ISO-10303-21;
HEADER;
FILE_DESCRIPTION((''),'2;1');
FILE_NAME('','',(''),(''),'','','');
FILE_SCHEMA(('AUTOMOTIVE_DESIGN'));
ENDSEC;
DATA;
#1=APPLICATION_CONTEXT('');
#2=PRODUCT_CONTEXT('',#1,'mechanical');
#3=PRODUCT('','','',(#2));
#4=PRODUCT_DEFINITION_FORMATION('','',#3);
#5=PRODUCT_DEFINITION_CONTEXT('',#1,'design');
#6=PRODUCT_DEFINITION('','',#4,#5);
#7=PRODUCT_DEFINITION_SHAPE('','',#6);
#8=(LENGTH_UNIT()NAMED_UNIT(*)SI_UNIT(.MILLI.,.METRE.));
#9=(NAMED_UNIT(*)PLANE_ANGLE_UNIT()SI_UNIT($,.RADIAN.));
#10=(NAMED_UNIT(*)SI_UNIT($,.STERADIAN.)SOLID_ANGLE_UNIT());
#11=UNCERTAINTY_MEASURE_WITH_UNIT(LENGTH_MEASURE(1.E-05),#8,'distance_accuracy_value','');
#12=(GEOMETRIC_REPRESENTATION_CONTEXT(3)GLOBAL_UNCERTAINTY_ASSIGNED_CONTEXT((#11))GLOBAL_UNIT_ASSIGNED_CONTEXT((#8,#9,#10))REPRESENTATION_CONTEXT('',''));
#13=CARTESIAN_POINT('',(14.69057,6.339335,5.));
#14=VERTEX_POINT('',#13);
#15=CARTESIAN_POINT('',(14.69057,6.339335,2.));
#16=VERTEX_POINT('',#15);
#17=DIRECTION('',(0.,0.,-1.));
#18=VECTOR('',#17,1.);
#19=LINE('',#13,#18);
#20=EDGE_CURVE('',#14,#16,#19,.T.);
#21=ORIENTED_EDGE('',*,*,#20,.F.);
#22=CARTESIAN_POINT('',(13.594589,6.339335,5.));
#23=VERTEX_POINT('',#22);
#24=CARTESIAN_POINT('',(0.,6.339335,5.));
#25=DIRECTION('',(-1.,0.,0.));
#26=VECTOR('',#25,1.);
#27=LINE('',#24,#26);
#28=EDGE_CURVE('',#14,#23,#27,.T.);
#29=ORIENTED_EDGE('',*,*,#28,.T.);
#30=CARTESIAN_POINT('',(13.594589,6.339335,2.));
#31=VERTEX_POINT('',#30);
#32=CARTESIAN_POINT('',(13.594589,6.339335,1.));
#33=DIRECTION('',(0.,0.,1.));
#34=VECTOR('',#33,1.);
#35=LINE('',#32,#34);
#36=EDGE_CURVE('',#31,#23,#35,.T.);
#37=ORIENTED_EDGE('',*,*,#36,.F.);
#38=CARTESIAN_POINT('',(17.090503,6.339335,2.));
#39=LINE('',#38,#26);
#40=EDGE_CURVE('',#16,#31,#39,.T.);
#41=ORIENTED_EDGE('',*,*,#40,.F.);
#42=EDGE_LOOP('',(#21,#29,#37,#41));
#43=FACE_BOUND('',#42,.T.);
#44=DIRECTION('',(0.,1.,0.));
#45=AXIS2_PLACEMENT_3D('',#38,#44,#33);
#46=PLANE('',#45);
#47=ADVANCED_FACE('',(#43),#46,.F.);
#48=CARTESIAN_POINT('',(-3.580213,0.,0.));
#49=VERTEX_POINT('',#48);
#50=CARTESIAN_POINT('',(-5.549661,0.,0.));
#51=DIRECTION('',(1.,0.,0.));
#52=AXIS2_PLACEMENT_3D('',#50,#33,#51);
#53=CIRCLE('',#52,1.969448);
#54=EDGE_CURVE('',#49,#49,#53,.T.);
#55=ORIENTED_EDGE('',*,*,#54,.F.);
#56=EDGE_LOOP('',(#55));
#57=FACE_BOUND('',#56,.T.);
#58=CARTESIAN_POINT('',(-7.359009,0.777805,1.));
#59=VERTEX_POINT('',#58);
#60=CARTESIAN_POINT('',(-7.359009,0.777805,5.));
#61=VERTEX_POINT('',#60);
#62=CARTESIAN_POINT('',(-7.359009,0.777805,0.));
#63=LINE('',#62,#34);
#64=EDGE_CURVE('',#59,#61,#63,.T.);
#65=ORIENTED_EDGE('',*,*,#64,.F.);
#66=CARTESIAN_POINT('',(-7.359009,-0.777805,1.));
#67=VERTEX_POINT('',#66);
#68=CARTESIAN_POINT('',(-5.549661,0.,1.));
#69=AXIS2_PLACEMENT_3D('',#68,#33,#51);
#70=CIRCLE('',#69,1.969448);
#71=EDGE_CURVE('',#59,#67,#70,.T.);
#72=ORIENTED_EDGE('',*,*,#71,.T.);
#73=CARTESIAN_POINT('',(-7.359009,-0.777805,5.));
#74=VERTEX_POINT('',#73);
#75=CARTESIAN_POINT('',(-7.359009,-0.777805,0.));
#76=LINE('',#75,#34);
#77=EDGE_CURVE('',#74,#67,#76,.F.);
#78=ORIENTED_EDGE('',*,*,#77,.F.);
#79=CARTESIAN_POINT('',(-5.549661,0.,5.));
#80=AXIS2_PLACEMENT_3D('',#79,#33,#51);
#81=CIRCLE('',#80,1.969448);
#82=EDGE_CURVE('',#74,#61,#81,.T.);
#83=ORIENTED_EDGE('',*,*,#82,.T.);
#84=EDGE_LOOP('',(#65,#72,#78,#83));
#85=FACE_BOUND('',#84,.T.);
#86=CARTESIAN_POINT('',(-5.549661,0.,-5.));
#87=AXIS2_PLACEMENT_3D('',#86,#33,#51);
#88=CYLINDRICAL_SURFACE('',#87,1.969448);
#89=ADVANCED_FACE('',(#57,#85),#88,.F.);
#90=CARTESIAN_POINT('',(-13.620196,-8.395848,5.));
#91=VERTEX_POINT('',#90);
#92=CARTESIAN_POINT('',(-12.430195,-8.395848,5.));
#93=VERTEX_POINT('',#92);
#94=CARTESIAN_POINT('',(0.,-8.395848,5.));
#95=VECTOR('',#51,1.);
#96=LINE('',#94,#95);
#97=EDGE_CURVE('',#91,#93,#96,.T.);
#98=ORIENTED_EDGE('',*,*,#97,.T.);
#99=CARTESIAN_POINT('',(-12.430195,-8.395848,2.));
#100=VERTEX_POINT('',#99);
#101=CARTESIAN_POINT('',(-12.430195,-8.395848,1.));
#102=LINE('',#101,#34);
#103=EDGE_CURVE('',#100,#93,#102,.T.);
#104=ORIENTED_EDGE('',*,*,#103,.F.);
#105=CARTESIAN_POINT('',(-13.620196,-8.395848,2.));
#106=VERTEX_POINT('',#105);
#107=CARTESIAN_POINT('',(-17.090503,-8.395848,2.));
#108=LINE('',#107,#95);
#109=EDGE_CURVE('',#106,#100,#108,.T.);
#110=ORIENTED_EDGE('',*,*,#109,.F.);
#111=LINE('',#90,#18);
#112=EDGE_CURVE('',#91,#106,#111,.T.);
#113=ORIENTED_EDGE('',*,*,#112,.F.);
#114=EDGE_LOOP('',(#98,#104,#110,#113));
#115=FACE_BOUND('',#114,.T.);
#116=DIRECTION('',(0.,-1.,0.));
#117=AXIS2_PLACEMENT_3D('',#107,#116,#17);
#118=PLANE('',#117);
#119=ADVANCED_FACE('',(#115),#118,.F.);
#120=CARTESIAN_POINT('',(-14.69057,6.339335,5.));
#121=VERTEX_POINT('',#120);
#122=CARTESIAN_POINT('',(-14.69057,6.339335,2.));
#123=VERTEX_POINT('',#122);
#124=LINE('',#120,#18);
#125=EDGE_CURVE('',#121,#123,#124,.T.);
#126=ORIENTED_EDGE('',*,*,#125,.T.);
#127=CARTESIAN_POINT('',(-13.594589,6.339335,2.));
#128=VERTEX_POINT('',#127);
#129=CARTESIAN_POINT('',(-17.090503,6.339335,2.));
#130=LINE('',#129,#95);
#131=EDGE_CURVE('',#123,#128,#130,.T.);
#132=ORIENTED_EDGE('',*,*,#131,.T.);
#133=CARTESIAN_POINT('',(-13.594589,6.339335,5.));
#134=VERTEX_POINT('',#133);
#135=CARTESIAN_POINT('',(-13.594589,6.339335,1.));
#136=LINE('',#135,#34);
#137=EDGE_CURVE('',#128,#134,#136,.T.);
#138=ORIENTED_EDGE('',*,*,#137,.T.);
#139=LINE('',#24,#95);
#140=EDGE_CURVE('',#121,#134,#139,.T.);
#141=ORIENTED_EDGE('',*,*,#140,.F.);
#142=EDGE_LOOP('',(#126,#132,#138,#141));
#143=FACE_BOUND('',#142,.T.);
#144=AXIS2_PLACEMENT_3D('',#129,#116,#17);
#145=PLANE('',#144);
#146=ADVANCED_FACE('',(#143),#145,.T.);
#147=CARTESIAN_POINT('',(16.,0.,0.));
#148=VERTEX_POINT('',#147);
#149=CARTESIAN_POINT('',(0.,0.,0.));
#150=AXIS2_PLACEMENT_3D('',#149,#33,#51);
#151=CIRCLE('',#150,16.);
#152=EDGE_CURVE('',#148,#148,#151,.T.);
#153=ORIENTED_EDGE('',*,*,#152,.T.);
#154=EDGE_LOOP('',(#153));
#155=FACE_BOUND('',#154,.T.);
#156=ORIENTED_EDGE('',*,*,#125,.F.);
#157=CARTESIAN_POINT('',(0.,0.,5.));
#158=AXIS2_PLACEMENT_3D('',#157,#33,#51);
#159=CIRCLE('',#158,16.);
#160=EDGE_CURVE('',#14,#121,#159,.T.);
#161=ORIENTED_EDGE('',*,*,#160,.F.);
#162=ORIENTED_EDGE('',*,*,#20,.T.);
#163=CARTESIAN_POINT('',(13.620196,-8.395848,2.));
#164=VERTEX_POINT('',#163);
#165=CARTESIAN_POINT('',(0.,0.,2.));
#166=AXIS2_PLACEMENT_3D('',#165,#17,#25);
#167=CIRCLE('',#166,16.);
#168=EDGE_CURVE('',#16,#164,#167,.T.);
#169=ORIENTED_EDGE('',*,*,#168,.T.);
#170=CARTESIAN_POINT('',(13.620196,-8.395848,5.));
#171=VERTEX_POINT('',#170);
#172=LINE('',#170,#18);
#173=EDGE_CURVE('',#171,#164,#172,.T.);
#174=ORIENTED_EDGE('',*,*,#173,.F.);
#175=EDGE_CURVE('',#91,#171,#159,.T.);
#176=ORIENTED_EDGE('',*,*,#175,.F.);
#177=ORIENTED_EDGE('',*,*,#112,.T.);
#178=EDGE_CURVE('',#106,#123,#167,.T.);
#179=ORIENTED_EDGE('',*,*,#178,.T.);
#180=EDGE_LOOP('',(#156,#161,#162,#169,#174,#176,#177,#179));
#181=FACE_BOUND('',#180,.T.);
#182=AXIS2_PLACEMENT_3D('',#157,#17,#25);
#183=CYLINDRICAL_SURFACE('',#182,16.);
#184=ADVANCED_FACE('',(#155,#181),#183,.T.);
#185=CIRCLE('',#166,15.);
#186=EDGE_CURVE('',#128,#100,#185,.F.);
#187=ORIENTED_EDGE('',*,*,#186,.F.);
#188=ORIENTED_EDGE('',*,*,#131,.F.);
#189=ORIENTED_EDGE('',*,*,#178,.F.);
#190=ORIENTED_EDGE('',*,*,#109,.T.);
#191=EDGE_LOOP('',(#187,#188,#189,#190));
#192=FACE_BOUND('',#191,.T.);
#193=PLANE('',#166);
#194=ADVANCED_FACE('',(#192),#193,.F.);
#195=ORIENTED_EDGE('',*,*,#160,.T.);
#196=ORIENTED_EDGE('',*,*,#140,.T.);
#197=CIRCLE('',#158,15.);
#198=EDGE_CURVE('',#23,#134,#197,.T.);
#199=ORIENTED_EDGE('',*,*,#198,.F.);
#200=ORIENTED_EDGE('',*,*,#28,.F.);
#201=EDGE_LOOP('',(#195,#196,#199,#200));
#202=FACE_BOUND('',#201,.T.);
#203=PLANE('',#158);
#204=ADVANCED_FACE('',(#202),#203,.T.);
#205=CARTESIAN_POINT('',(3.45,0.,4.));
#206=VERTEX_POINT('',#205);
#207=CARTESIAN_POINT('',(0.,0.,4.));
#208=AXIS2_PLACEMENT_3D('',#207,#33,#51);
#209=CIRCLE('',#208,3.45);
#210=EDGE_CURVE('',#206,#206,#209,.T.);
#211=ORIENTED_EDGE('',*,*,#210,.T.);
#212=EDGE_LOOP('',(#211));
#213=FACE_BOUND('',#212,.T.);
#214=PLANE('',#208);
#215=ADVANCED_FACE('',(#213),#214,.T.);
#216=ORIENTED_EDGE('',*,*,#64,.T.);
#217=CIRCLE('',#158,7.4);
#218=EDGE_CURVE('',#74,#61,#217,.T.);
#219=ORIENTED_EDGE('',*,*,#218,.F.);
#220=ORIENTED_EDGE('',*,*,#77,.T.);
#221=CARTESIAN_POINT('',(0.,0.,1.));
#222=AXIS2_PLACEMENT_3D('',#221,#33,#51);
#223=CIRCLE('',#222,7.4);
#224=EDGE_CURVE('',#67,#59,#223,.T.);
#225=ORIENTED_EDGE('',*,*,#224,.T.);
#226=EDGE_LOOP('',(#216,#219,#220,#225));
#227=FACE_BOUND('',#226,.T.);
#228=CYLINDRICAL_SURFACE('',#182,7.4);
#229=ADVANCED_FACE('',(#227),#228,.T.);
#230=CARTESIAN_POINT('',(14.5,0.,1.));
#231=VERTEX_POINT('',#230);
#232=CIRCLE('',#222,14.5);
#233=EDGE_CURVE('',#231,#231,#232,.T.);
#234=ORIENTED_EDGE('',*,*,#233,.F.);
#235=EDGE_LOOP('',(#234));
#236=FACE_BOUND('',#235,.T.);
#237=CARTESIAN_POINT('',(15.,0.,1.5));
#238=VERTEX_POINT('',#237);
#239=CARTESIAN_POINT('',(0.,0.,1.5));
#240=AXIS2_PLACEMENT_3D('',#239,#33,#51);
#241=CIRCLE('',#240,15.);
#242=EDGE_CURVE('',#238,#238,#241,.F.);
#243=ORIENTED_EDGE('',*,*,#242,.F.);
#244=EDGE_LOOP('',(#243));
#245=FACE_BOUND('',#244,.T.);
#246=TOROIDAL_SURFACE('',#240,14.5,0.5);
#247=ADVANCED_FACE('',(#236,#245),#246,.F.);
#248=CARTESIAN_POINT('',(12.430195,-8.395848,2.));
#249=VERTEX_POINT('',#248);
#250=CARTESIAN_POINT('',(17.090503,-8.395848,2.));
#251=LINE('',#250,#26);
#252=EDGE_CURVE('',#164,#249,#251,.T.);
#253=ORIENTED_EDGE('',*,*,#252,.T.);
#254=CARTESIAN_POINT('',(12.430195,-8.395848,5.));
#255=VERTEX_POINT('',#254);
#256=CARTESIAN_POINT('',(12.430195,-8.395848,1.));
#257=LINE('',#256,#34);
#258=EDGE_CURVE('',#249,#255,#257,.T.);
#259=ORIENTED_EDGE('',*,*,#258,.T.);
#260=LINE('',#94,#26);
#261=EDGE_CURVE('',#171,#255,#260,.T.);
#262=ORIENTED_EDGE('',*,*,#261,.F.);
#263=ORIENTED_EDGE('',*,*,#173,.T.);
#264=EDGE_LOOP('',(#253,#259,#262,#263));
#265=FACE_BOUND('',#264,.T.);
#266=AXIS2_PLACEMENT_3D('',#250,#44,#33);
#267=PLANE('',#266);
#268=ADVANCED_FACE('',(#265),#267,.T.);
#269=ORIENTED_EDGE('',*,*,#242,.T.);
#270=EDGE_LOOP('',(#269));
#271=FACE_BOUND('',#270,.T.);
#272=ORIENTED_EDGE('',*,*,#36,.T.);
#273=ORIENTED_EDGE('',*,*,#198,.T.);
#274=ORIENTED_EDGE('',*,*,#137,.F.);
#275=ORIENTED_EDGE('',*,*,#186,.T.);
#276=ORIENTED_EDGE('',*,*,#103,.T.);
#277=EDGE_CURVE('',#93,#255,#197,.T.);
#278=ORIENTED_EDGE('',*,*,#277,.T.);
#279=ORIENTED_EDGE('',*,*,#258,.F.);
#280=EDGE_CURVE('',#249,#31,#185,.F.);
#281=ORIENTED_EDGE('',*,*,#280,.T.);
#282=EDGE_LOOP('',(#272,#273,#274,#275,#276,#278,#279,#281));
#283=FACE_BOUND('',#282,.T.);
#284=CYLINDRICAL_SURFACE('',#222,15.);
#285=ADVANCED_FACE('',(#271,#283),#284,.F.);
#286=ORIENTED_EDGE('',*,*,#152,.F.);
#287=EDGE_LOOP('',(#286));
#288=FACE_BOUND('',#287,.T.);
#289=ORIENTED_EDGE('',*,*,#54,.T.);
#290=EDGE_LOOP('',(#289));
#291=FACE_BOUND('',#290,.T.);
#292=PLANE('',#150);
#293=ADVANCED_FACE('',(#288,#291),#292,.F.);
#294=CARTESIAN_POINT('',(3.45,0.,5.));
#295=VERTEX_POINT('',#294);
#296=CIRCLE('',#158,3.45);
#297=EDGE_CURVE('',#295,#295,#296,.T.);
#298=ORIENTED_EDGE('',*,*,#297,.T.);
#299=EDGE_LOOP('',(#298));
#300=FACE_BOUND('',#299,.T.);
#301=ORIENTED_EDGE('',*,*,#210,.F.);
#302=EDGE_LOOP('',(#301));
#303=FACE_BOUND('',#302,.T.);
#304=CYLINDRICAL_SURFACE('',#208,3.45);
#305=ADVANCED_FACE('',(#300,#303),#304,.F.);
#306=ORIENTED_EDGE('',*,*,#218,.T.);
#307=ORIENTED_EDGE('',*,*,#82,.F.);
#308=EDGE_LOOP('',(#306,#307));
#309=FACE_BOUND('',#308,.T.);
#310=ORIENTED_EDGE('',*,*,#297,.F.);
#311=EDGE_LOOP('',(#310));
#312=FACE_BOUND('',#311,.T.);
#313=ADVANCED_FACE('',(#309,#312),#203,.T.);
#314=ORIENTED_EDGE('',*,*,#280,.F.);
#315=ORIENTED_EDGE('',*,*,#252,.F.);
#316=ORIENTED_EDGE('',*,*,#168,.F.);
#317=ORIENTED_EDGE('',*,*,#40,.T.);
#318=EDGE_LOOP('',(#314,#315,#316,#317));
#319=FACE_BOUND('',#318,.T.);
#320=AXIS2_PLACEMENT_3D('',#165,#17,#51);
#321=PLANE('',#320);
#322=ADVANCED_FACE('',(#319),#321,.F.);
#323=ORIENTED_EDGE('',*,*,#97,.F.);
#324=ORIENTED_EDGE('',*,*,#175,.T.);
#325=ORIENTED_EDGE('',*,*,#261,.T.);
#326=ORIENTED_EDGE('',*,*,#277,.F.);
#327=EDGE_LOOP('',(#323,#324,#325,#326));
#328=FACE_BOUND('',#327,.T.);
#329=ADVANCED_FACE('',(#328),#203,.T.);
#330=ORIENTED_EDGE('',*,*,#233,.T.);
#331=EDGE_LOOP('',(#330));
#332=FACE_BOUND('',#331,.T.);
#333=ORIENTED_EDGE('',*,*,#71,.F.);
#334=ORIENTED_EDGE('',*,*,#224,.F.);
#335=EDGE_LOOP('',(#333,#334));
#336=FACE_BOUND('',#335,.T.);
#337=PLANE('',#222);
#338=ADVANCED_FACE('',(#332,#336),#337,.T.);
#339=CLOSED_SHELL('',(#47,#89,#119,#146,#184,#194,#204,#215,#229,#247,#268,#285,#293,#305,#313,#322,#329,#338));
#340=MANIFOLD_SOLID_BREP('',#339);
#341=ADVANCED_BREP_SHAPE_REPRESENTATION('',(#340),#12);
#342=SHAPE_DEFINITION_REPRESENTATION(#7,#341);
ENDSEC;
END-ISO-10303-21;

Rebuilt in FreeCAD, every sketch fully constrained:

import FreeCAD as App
import Part
import Sketcher

V = App.Vector


def edges_at(feature, points):
    """Names of the edges that pass closest to the given points."""
    edges = feature.Shape.Edges
    near = lambda p: min(range(len(edges)), key=lambda i: edges[i].distToShape(Part.Vertex(*p))[0])
    return sorted({f"Edge{near(p) + 1}" for p in points})


def add_polygon(sketch, points):
    """Adds a closed chain of lines whose ends are joined by coincident constraints."""
    first, n = sketch.GeometryCount, len(points)
    for a, b in zip(points, points[1:] + points[:1]):
        sketch.addGeometry(Part.LineSegment(App.Vector(*a, 0), App.Vector(*b, 0)), False)
    for i in range(n):
        sketch.addConstraint(Sketcher.Constraint("Coincident", first + i, 2, first + (i + 1) % n, 1))

doc = App.newDocument("Part")
body = doc.addObject("PartDesign::Body", "Body")

sketch1 = body.newObject("Sketcher::SketchObject", "Sketch")
sketch1.AttachmentSupport = (doc.getObject("XY_Plane"), [""])
sketch1.MapMode = "FlatFace"
sketch1.addGeometry(Part.Circle(V(0, 0, 0), V(0, 0, 1), 16), False)
sketch1.addConstraint([
    Sketcher.Constraint("Coincident", 0, 3, -1, 1),
    Sketcher.Constraint("Diameter", 0, 32.0),
])
pad1 = body.newObject("PartDesign::Pad", "Pad")
pad1.Profile = sketch1
pad1.Length = 5

sketch2 = body.newObject("Sketcher::SketchObject", "Sketch001")
sketch2.AttachmentSupport = (doc.getObject("XY_Plane"), [""])
sketch2.MapMode = "FlatFace"
sketch2.AttachmentOffset = App.Placement(V(0, 0, 5), App.Rotation())
sketch2.addGeometry(Part.Circle(V(0, 0, 0), V(0, 0, 1), 15), False)
sketch2.addConstraint([
    Sketcher.Constraint("Coincident", 0, 3, -1, 1),
    Sketcher.Constraint("Diameter", 0, 30.0),
])
pocket1 = body.newObject("PartDesign::Pocket", "Pocket")
pocket1.Profile = sketch2
pocket1.Length = 4
doc.recompute()

fillet = body.newObject("PartDesign::Fillet", "Fillet")
fillet.Base = (pocket1, edges_at(pocket1, [(-15, 0, 1)]))
fillet.Radius = 0.5

sketch3 = body.newObject("Sketcher::SketchObject", "Sketch002")
sketch3.AttachmentSupport = (doc.getObject("XY_Plane"), [""])
sketch3.MapMode = "FlatFace"
sketch3.AttachmentOffset = App.Placement(V(0, 0, 13), App.Rotation())
add_polygon(sketch3, [(-17.090503, 6.339335), (-17.090503, -8.395848), (-11.822002, -8.395848), (-11.822002, 6.339335)])
sketch3.addConstraint([
    Sketcher.Constraint("Vertical", 0),
    Sketcher.Constraint("Horizontal", 1),
    Sketcher.Constraint("Vertical", 2),
    Sketcher.Constraint("Horizontal", 3),
    Sketcher.Constraint("DistanceX", 1, 1, 1, 2, 5.268501),
    Sketcher.Constraint("DistanceY", 0, 2, 0, 1, 14.735182),
    Sketcher.Constraint("DistanceX", 0, 2, -1, 1, 17.090503),
    Sketcher.Constraint("DistanceY", 0, 2, -1, 1, 8.395848),
])
pocket2 = body.newObject("PartDesign::Pocket", "Pocket001")
pocket2.Profile = sketch3
pocket2.Length = 11
doc.recompute()

mirrored = body.newObject("PartDesign::Mirrored", "Mirrored")
mirrored.Originals = [pocket2]
mirrored.MirrorPlane = (doc.getObject("YZ_Plane"), [""])
body.Tip = mirrored

sketch4 = body.newObject("Sketcher::SketchObject", "Sketch003")
sketch4.AttachmentSupport = (doc.getObject("XY_Plane"), [""])
sketch4.MapMode = "FlatFace"
sketch4.AttachmentOffset = App.Placement(V(0, 0, 1), App.Rotation())
sketch4.addGeometry(Part.Circle(V(0, 0, 0), V(0, 0, 1), 7.4), False)
sketch4.addConstraint([
    Sketcher.Constraint("Coincident", 0, 3, -1, 1),
    Sketcher.Constraint("Diameter", 0, 14.8),
])
pad2 = body.newObject("PartDesign::Pad", "Pad001")
pad2.Profile = sketch4
pad2.Length = 4

sketch5 = body.newObject("Sketcher::SketchObject", "Sketch004")
sketch5.AttachmentSupport = (doc.getObject("XY_Plane"), [""])
sketch5.MapMode = "FlatFace"
sketch5.AttachmentOffset = App.Placement(V(0, 0, 5), App.Rotation())
sketch5.addGeometry(Part.Circle(V(0, 0, 0), V(0, 0, 1), 3.45), False)
sketch5.addConstraint([
    Sketcher.Constraint("Coincident", 0, 3, -1, 1),
    Sketcher.Constraint("Diameter", 0, 6.9),
])
pocket3 = body.newObject("PartDesign::Pocket", "Pocket002")
pocket3.Profile = sketch5
pocket3.Length = 1

sketch6 = body.newObject("Sketcher::SketchObject", "Sketch005")
sketch6.AttachmentSupport = (doc.getObject("XY_Plane"), [""])
sketch6.MapMode = "FlatFace"
sketch6.AttachmentOffset = App.Placement(V(0, 0, 5), App.Rotation())
sketch6.addGeometry(Part.Circle(V(-5.549661, 0, 0), V(0, 0, 1), 1.969448), False)
sketch6.addConstraint([
    Sketcher.Constraint("PointOnObject", 0, 3, -1),
    Sketcher.Constraint("Diameter", 0, 3.938895),
    Sketcher.Constraint("DistanceX", 0, 3, -1, 1, 5.549661),
])
pocket4 = body.newObject("PartDesign::Pocket", "Pocket003")
pocket4.Profile = sketch6
pocket4.Length = 10

doc.recompute()
